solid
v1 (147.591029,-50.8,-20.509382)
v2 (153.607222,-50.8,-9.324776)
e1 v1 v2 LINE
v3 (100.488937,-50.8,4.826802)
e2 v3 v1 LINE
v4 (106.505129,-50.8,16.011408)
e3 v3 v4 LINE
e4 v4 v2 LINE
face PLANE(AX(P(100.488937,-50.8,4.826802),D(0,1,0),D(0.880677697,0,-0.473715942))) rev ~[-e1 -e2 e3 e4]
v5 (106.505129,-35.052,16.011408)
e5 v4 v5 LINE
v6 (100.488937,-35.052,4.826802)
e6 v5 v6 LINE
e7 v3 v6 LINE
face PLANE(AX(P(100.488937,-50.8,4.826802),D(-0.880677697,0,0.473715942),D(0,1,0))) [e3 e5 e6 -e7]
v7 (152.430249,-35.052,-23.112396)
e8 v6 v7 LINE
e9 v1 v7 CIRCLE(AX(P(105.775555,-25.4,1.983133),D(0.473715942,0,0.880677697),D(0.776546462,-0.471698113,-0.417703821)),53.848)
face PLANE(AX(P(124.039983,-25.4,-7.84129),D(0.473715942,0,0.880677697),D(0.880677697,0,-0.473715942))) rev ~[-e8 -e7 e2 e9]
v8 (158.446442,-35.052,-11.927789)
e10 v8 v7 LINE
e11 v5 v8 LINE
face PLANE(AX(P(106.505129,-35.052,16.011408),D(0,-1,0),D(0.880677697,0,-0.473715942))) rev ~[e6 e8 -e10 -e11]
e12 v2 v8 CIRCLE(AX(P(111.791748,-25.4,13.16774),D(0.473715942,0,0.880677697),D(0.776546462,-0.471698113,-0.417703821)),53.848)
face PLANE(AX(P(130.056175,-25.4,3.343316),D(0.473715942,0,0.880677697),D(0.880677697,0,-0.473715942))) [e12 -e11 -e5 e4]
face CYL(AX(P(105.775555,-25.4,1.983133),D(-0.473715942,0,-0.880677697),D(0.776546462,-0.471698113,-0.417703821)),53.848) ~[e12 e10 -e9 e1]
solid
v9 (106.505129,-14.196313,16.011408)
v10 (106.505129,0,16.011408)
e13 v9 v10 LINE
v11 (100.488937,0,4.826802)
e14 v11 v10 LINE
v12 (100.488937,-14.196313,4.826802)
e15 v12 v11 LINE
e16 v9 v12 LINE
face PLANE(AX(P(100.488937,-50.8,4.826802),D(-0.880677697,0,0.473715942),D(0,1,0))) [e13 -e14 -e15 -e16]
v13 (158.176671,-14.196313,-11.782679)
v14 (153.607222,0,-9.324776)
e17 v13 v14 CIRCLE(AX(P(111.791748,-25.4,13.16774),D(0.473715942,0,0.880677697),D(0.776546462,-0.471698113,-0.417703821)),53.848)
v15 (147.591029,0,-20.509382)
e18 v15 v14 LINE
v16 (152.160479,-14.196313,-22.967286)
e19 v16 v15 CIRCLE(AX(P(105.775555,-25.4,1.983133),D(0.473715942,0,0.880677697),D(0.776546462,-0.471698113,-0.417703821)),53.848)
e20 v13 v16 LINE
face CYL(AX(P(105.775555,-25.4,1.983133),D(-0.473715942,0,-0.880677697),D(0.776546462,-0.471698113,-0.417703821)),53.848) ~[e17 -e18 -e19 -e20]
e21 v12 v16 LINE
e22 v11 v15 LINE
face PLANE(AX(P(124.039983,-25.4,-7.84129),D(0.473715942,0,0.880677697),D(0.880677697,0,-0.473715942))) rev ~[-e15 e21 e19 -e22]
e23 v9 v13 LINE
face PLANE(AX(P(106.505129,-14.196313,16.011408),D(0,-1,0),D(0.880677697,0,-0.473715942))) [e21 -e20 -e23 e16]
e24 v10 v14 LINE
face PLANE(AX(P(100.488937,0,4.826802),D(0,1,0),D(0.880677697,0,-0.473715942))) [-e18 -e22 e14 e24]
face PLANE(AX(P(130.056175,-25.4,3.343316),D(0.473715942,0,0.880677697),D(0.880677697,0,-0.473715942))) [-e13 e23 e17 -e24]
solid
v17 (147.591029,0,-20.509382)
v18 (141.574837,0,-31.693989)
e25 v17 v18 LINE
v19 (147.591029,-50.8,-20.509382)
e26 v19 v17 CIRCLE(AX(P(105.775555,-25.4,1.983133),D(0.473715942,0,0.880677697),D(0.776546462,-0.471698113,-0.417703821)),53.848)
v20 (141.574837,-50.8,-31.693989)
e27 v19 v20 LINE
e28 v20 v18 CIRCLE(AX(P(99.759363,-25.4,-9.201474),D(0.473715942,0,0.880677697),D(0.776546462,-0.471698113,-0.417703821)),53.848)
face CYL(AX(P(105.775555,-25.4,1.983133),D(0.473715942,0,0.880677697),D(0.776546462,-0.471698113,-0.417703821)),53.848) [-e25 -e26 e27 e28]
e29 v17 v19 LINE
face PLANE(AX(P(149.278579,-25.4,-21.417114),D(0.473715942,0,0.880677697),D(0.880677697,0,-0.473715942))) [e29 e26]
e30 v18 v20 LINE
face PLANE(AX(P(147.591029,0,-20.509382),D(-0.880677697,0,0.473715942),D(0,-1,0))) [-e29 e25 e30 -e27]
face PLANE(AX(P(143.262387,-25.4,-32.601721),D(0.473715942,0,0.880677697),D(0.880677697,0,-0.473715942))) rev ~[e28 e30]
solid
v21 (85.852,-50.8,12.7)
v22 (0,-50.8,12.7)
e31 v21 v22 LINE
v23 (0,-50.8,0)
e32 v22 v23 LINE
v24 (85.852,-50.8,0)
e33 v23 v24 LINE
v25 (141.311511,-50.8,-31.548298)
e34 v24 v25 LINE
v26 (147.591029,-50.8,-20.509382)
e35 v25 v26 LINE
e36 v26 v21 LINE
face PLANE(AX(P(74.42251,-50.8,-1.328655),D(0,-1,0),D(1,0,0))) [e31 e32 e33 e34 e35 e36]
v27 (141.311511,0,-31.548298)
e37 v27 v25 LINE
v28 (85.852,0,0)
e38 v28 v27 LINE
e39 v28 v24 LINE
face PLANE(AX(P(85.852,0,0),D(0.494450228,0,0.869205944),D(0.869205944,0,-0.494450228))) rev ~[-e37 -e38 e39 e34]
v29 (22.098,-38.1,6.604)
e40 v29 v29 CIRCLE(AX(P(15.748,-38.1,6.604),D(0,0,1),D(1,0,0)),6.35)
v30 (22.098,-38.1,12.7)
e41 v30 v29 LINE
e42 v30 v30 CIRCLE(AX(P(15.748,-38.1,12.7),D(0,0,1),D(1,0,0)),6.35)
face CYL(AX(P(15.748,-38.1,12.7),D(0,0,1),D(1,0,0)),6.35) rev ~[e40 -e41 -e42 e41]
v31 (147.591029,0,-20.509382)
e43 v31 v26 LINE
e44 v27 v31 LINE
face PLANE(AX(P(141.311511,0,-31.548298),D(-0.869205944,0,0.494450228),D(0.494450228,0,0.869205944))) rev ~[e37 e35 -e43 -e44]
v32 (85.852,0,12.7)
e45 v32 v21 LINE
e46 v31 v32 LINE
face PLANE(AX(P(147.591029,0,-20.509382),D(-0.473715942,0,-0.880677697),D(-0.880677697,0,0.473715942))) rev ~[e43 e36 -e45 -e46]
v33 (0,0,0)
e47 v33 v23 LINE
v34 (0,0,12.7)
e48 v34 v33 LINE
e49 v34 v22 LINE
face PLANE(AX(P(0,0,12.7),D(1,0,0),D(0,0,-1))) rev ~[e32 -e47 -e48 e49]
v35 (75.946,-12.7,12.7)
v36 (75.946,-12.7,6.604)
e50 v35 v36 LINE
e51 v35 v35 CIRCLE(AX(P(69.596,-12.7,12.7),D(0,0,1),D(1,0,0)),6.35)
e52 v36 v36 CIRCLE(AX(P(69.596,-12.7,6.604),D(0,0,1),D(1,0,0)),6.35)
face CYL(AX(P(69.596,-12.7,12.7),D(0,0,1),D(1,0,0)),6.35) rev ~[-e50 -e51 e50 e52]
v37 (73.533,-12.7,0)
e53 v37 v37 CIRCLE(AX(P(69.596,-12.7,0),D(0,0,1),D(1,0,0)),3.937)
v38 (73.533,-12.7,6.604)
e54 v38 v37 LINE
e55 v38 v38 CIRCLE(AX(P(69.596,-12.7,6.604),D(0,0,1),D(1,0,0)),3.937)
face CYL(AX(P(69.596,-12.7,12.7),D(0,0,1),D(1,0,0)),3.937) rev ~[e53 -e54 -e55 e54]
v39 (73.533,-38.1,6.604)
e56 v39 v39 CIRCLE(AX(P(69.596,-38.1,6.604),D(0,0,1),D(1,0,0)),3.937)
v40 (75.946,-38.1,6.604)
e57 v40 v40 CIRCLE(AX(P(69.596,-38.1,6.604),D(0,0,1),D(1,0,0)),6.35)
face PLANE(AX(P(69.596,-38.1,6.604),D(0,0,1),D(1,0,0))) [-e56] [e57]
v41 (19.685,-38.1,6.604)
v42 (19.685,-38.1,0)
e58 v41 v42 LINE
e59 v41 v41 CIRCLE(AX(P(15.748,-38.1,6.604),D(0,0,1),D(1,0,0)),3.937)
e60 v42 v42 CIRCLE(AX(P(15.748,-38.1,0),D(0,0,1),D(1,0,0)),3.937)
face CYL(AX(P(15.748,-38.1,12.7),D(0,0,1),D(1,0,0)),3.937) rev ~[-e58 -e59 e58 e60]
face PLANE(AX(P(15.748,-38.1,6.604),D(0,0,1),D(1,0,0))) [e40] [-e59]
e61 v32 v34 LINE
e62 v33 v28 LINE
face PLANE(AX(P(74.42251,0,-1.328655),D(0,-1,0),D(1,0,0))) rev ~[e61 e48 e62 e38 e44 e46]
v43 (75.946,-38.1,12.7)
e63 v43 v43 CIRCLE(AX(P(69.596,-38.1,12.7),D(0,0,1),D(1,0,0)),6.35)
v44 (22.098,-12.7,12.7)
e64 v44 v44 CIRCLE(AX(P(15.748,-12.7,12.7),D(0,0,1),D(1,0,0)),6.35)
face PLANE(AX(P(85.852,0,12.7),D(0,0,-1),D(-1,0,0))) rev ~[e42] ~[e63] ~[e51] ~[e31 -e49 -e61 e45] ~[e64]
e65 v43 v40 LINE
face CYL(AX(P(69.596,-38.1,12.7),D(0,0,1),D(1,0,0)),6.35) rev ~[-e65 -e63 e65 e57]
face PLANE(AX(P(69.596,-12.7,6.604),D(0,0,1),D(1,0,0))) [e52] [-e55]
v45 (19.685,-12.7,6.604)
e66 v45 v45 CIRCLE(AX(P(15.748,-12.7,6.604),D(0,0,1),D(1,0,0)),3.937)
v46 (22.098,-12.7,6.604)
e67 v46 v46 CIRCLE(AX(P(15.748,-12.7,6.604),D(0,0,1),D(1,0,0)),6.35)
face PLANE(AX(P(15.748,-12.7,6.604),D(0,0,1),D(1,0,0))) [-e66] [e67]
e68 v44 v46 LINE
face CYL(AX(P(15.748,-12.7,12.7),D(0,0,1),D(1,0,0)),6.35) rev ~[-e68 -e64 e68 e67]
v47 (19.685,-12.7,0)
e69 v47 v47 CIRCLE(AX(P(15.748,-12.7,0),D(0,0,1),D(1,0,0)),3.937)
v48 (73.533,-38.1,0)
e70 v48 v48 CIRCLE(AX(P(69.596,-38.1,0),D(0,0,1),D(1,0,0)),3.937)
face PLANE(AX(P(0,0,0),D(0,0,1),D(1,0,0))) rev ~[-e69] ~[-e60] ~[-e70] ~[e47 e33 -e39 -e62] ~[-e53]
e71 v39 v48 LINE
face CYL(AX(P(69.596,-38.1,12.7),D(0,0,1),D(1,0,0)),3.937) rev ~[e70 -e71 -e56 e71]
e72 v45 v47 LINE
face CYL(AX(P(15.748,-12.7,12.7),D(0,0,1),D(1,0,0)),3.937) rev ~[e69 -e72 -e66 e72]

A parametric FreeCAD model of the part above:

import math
import FreeCAD as App
import Part
import Sketcher
Q = App.Units.Quantity


def add_polygon(sketch, points):
    """Adds a closed chain of lines whose ends are joined by coincident constraints."""
    first, n = sketch.GeometryCount, len(points)
    for a, b in zip(points, points[1:] + points[:1]):
        sketch.addGeometry(Part.LineSegment(App.Vector(*a, 0), App.Vector(*b, 0)), False)
    for i in range(n):
        sketch.addConstraint(Sketcher.Constraint("Coincident", first + i, 2, first + (i + 1) % n, 1))

doc = App.newDocument("Part")
body = doc.addObject("PartDesign::Body", "Body")

# Sketch on XZ plane
sketch1 = body.newObject("Sketcher::SketchObject", "Sketch")
sketch1.AttachmentSupport = (doc.getObject("XZ_Plane"), [""])
sketch1.MapMode = "FlatFace"
add_polygon(sketch1, [(0, 12.7), (0, 0), (85.852, 0), (141.311511, -31.548298), (147.591029, -20.509382), (85.852, 12.7)])  # lines 0-5
sketch1.addConstraint(Sketcher.Constraint("Vertical", 0))
sketch1.addConstraint(Sketcher.Constraint("Horizontal", 1))
sketch1.addConstraint(Sketcher.Constraint("Horizontal", 5))
sketch1.addConstraint(Sketcher.Constraint("Coincident", 0, 2, -1, 1))
sketch1.addConstraint(Sketcher.Constraint("Perpendicular", 2, 3))
sketch1.addConstraint(Sketcher.Constraint("Vertical", 1, 2, 4, 2))
sketch1.addConstraint(Sketcher.Constraint("DistanceY", 0, 2, 0, 1, Q("0.5 in")))
sketch1.addConstraint(Sketcher.Constraint("Distance", 3, Q("0.5 in")))
sketch1.addConstraint(Sketcher.Constraint("DistanceX", 1, 1, 1, 2, Q("3.38 in")))
sketch1.addConstraint(Sketcher.Constraint("Distance", 4, Q("2.76 in")))
sketch1.addConstraint(Sketcher.Constraint("Distance", 2, Q("2.512 in")))
pad1 = body.newObject("PartDesign::Pad", "Pad")
pad1.Profile = sketch1
pad1.Length = Q("2 in")

# Sketch on XY plane
sketch2 = body.newObject("Sketcher::SketchObject", "Sketch001")
sketch2.AttachmentSupport = (doc.getObject("XY_Plane"), [""])
sketch2.MapMode = "FlatFace"
sketch2.AttachmentOffset = App.Placement(App.Vector(0, 0, 0.5 * 25.4), App.Rotation())
sketch2.addGeometry(Part.Circle(App.Vector(15.748, -12.7, 0), App.Vector(0, 0, 1), 6.35), False)
sketch2.addGeometry(Part.Circle(App.Vector(69.596, -12.7, 0), App.Vector(0, 0, 1), 6.35), False)
sketch2.addGeometry(Part.Circle(App.Vector(15.748, -38.1, 0), App.Vector(0, 0, 1), 6.35), False)
sketch2.addGeometry(Part.Circle(App.Vector(69.596, -38.1, 0), App.Vector(0, 0, 1), 6.35), False)
sketch2.addConstraint(Sketcher.Constraint("Equal", 0, 1))
sketch2.addConstraint(Sketcher.Constraint("Equal", 1, 2))
sketch2.addConstraint(Sketcher.Constraint("Equal", 2, 3))
sketch2.addConstraint(Sketcher.Constraint("Horizontal", 0, 3, 1, 3))
sketch2.addConstraint(Sketcher.Constraint("Horizontal", 2, 3, 3, 3))
sketch2.addConstraint(Sketcher.Constraint("Vertical", 0, 3, 2, 3))
sketch2.addConstraint(Sketcher.Constraint("Vertical", 1, 3, 3, 3))
sketch2.addConstraint(Sketcher.Constraint("Diameter", 0, Q("0.5 in")))
sketch2.addConstraint(Sketcher.Constraint("DistanceY", 2, 3, 0, 3, Q("1 in")))
sketch2.addConstraint(Sketcher.Constraint("DistanceY", 0, 3, -1, 1, Q("0.5 in")))
sketch2.addConstraint(Sketcher.Constraint("DistanceX", -1, 1, 0, 3, Q("0.62 in")))
sketch2.addConstraint(Sketcher.Constraint("DistanceX", -1, 1, 1, 3, Q("2.74 in")))
pocket1 = body.newObject("PartDesign::Pocket", "Pocket")
pocket1.Profile = sketch2
pocket1.Length = Q("0.24 in")

# Sketch on XY plane
sketch3 = body.newObject("Sketcher::SketchObject", "Sketch002")
sketch3.AttachmentSupport = (doc.getObject("XY_Plane"), [""])
sketch3.MapMode = "FlatFace"
sketch3.AttachmentOffset = App.Placement(App.Vector(0, 0, 0.5 * 25.4), App.Rotation())
sketch3.addGeometry(Part.Circle(App.Vector(15.748, -12.7, 0), App.Vector(0, 0, 1), 3.937), False)
sketch3.addGeometry(Part.Circle(App.Vector(69.596, -12.7, 0), App.Vector(0, 0, 1), 3.937), False)
sketch3.addGeometry(Part.Circle(App.Vector(69.596, -38.1, 0), App.Vector(0, 0, 1), 3.937), False)
sketch3.addGeometry(Part.Circle(App.Vector(15.748, -38.1, 0), App.Vector(0, 0, 1), 3.937), False)
sketch3.addConstraint(Sketcher.Constraint("Equal", 0, 1))
sketch3.addConstraint(Sketcher.Constraint("Equal", 1, 2))
sketch3.addConstraint(Sketcher.Constraint("Equal", 2, 3))
sketch3.addConstraint(Sketcher.Constraint("Horizontal", 0, 3, 1, 3))
sketch3.addConstraint(Sketcher.Constraint("Horizontal", 2, 3, 3, 3))
sketch3.addConstraint(Sketcher.Constraint("Vertical", 1, 3, 2, 3))
sketch3.addConstraint(Sketcher.Constraint("Vertical", 0, 3, 3, 3))
sketch3.addConstraint(Sketcher.Constraint("Diameter", 0, Q("0.31 in")))
sketch3.addConstraint(Sketcher.Constraint("DistanceY", 2, 3, 1, 3, Q("1 in")))
sketch3.addConstraint(Sketcher.Constraint("DistanceY", 0, 3, -1, 1, Q("0.5 in")))
sketch3.addConstraint(Sketcher.Constraint("DistanceX", -1, 1, 0, 3, Q("0.62 in")))
sketch3.addConstraint(Sketcher.Constraint("DistanceX", -1, 1, 1, 3, Q("2.74 in")))
pocket2 = body.newObject("PartDesign::Pocket", "Pocket001")
pocket2.Profile = sketch3
pocket2.Type = "ThroughAll"
body2 = doc.addObject("PartDesign::Body", "Body001")

# Sketch on an angled plane
sketch4 = body2.newObject("Sketcher::SketchObject", "Sketch003")
sketch4.Placement = App.Placement(App.Vector(24.564099, 0, 45.666721), App.Rotation(App.Vector(0.880677697, 0, -0.473715942), App.Vector(0, 1, 0), App.Vector(0.473715942, 0, 0.880677697), "ZXY"))
sketch4.addGeometry(Part.LineSegment(App.Vector(139.695749, 0, 0), App.Vector(139.695749, -50.8, 0)), False)
sketch4.addGeometry(Part.ArcOfCircle(Part.Circle(App.Vector(92.214731, -25.4, 0), App.Vector(0, 0, 1), 53.848), math.radians(-28.144581), math.radians(28.144581)), False)
sketch4.addConstraint(Sketcher.Constraint("Coincident", 0, 1, 1, 2))
sketch4.addConstraint(Sketcher.Constraint("Coincident", 1, 1, 0, 2))
sketch4.addConstraint(Sketcher.Constraint("Vertical", 0))
sketch4.addConstraint(Sketcher.Constraint("PointOnObject", 0, 1, -1))
sketch4.addConstraint(Sketcher.Constraint("DistanceY", 0, 2, 0, 1, Q("2 in")))
sketch4.addConstraint(Sketcher.Constraint("Radius", 1, Q("2.12 in")))
sketch4.addConstraint(Sketcher.Constraint("DistanceX", -1, 1, 1, 3, 92.214731))
pad2 = body2.newObject("PartDesign::Pad", "Pad001")
pad2.Profile = sketch4
pad2.Length = Q("0.5 in")
pad2.Reversed = True
body3 = doc.addObject("PartDesign::Body", "Body002")
body3.AllowCompound = True

# Sketch on an angled plane
sketch5 = body3.newObject("Sketcher::SketchObject", "Sketch004")
sketch5.Placement = App.Placement(App.Vector(24.564099, 0, 45.666721), App.Rotation(App.Vector(0.880677697, 0, -0.473715942), App.Vector(0, 1, 0), App.Vector(0.473715942, 0, 0.880677697), "ZXY"))
sketch5.addGeometry(Part.LineSegment(App.Vector(86.211832, 0, 0), App.Vector(86.211832, -50.8, 0)), False)
sketch5.addGeometry(Part.LineSegment(App.Vector(86.211832, -50.8, 0), App.Vector(139.695749, -50.8, 0)), False)
sketch5.addGeometry(Part.ArcOfCircle(Part.Circle(App.Vector(92.214731, -25.4, 0), App.Vector(0, 0, 1), 53.848), math.radians(-28.144581), math.radians(28.144581)), False)
sketch5.addGeometry(Part.LineSegment(App.Vector(139.695749, 0, 0), App.Vector(86.211832, 0, 0)), False)
sketch5.addConstraint(Sketcher.Constraint("Coincident", 0, 2, 1, 1))
sketch5.addConstraint(Sketcher.Constraint("Coincident", 1, 2, 2, 1))
sketch5.addConstraint(Sketcher.Constraint("Coincident", 2, 2, 3, 1))
sketch5.addConstraint(Sketcher.Constraint("Coincident", 3, 2, 0, 1))
sketch5.addConstraint(Sketcher.Constraint("Vertical", 0))
sketch5.addConstraint(Sketcher.Constraint("Horizontal", 1))
sketch5.addConstraint(Sketcher.Constraint("Horizontal", 3))
sketch5.addConstraint(Sketcher.Constraint("PointOnObject", 2, 2, -1))
sketch5.addConstraint(Sketcher.Constraint("Vertical", 1, 2, 2, 2))
sketch5.addConstraint(Sketcher.Constraint("DistanceY", 0, 2, 0, 1, Q("2 in")))
sketch5.addConstraint(Sketcher.Constraint("Radius", 2, Q("2.12 in")))
sketch5.addConstraint(Sketcher.Constraint("DistanceX", 0, 2, 2, 3, 6.002898))
sketch5.addConstraint(Sketcher.Constraint("DistanceX", -1, 1, 2, 3, 92.214731))
pad3 = body3.newObject("PartDesign::Pad", "Pad002")
pad3.Profile = sketch5
pad3.Length = Q("0.5 in")

# Sketch on an angled plane
sketch6 = body3.newObject("Sketcher::SketchObject", "Sketch005")
sketch6.Placement = App.Placement(App.Vector(30.580291, 0, 56.851328), App.Rotation(App.Vector(0.880677697, 0, -0.473715942), App.Vector(0, 1, 0), App.Vector(0.473715942, 0, 0.880677697), "ZXY"))
add_polygon(sketch6, [(86.211832, -14.196313), (86.211832, -35.052), (149.347136, -35.052), (149.347136, -14.196313)])  # lines 0-3
sketch6.addConstraint(Sketcher.Constraint("Vertical", 0))
sketch6.addConstraint(Sketcher.Constraint("Horizontal", 1))
sketch6.addConstraint(Sketcher.Constraint("Vertical", 2))
sketch6.addConstraint(Sketcher.Constraint("Horizontal", 3))
sketch6.addConstraint(Sketcher.Constraint("DistanceY", 0, 2, -1, 1, Q("1.38 in")))
sketch6.addConstraint(Sketcher.Constraint("DistanceX", 1, 1, 1, 2, 63.135304))
sketch6.addConstraint(Sketcher.Constraint("DistanceY", 0, 2, 0, 1, 20.855687))
sketch6.addConstraint(Sketcher.Constraint("DistanceX", -1, 1, 0, 2, 86.211832))
pocket3 = body3.newObject("PartDesign::Pocket", "Pocket002")
pocket3.Profile = sketch6
pocket3.Length = Q("1 in")

doc.recompute()
